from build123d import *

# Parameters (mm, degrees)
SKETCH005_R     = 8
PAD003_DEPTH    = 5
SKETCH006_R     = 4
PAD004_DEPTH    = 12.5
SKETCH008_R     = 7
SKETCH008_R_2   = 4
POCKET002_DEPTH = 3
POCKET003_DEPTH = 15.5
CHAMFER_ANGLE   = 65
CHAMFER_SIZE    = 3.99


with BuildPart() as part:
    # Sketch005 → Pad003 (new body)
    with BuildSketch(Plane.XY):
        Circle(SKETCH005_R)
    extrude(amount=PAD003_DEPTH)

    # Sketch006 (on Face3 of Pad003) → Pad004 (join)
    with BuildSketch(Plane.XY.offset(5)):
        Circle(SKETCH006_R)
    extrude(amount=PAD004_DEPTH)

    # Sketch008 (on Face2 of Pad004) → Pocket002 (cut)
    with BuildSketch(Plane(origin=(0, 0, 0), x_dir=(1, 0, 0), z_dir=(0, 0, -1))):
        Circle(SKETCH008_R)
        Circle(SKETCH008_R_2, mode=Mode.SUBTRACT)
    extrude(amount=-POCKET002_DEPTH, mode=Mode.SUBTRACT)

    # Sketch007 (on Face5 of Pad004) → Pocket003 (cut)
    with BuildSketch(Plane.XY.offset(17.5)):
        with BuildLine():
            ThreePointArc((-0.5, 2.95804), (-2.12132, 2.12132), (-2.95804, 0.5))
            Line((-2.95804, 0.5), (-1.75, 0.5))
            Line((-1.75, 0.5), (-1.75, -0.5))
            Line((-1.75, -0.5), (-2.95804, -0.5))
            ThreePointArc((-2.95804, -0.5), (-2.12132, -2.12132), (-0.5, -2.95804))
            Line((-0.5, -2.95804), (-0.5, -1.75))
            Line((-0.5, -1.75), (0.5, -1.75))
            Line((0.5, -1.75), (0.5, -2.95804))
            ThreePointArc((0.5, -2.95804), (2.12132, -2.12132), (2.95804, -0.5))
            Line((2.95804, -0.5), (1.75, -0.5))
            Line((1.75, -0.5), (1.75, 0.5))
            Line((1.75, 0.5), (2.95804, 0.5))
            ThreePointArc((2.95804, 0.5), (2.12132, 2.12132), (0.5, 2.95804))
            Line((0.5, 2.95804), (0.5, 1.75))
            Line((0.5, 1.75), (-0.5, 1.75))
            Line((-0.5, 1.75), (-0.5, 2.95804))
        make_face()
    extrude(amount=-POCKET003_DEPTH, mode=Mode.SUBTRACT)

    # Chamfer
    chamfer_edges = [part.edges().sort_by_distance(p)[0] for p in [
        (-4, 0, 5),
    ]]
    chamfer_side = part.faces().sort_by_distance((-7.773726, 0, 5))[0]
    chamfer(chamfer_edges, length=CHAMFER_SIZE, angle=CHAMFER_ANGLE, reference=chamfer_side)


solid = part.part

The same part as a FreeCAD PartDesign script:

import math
import FreeCAD as App
import Part
import Sketcher
from FreeCAD import Vector


def edges_at(feature, points):
    """Names of the edges that pass closest to the given points."""
    edges = feature.Shape.Edges
    near = lambda p: min(range(len(edges)), key=lambda i: edges[i].distToShape(Part.Vertex(*p))[0])
    return sorted({f"Edge{near(p) + 1}" for p in points})

doc = App.newDocument("Part")
body = doc.addObject("PartDesign::Body", "Body")

# Sketch on XY plane
sketch1 = body.newObject("Sketcher::SketchObject", "Sketch")
sketch1.AttachmentSupport = (doc.getObject("XY_Plane"), [""])
sketch1.MapMode = "FlatFace"
sketch1.addGeometry(Part.Circle(Vector(0, 0, 0), Vector(0, 0, 1), 8), False)
sketch1.addConstraint(Sketcher.Constraint("Coincident", 0, 3, -1, 1))
sketch1.addConstraint(Sketcher.Constraint("Diameter", 0, 16.0))
pad1 = body.newObject("PartDesign::Pad", "Pad")
pad1.Profile = sketch1
pad1.Length = 5

# Sketch on XY plane
sketch2 = body.newObject("Sketcher::SketchObject", "Sketch001")
sketch2.AttachmentSupport = (doc.getObject("XY_Plane"), [""])
sketch2.MapMode = "FlatFace"
sketch2.AttachmentOffset = App.Placement(Vector(0, 0, 5), App.Rotation())
sketch2.addGeometry(Part.Circle(Vector(0, 0, 0), Vector(0, 0, 1), 4), False)
sketch2.addConstraint(Sketcher.Constraint("Coincident", 0, 3, -1, 1))
sketch2.addConstraint(Sketcher.Constraint("Diameter", 0, 8.0))
pad2 = body.newObject("PartDesign::Pad", "Pad001")
pad2.Profile = sketch2
pad2.Length = 12.5

# Sketch on XY plane
sketch3 = body.newObject("Sketcher::SketchObject", "Sketch002")
sketch3.AttachmentSupport = (doc.getObject("XY_Plane"), [""])
sketch3.MapMode = "FlatFace"
sketch3.addGeometry(Part.Circle(Vector(0, 0, 0), Vector(0, 0, 1), 7), False)
sketch3.addGeometry(Part.Circle(Vector(0, 0, 0), Vector(0, 0, 1), 4), False)
sketch3.addConstraint(Sketcher.Constraint("Coincident", 0, 3, -1, 1))
sketch3.addConstraint(Sketcher.Constraint("Coincident", 1, 3, -1, 1))
sketch3.addConstraint(Sketcher.Constraint("Diameter", 0, 14.0))
sketch3.addConstraint(Sketcher.Constraint("Diameter", 1, 8.0))
pocket1 = body.newObject("PartDesign::Pocket", "Pocket")
pocket1.Profile = sketch3
pocket1.Length = 3
pocket1.Reversed = True

# Sketch on XY plane
sketch4 = body.newObject("Sketcher::SketchObject", "Sketch003")
sketch4.AttachmentSupport = (doc.getObject("XY_Plane"), [""])
sketch4.MapMode = "FlatFace"
sketch4.AttachmentOffset = App.Placement(Vector(0, 0, 17.5), App.Rotation())
sketch4.addGeometry(Part.ArcOfCircle(Part.Circle(Vector(0, 0, 0), Vector(0, 0, 1), 3), math.radians(100), math.radians(170)), False)
sketch4.addGeometry(Part.LineSegment(Vector(-3, 0.5, 0), Vector(-1.8, 0.5, 0)), False)
sketch4.addGeometry(Part.LineSegment(Vector(-1.8, 0.5, 0), Vector(-1.8, -0.5, 0)), False)
sketch4.addGeometry(Part.LineSegment(Vector(-1.8, -0.5, 0), Vector(-3, -0.5, 0)), False)
sketch4.addGeometry(Part.ArcOfCircle(Part.Circle(Vector(0, 0, 0), Vector(0, 0, 1), 3), math.radians(-170), math.radians(-100)), False)
sketch4.addGeometry(Part.LineSegment(Vector(-0.5, -3, 0), Vector(-0.5, -1.8, 0)), False)
sketch4.addGeometry(Part.LineSegment(Vector(-0.5, -1.8, 0), Vector(0.5, -1.8, 0)), False)
sketch4.addGeometry(Part.LineSegment(Vector(0.5, -1.8, 0), Vector(0.5, -3, 0)), False)
sketch4.addGeometry(Part.ArcOfCircle(Part.Circle(Vector(0, 0, 0), Vector(0, 0, 1), 3), math.radians(-80), math.radians(-10)), False)
sketch4.addGeometry(Part.LineSegment(Vector(3, -0.5, 0), Vector(1.8, -0.5, 0)), False)
sketch4.addGeometry(Part.LineSegment(Vector(1.8, -0.5, 0), Vector(1.8, 0.5, 0)), False)
sketch4.addGeometry(Part.LineSegment(Vector(1.8, 0.5, 0), Vector(3, 0.5, 0)), False)
sketch4.addGeometry(Part.ArcOfCircle(Part.Circle(Vector(0, 0, 0), Vector(0, 0, 1), 3), math.radians(10), math.radians(80)), False)
sketch4.addGeometry(Part.LineSegment(Vector(0.5, 3, 0), Vector(0.5, 1.8, 0)), False)
sketch4.addGeometry(Part.LineSegment(Vector(0.5, 1.8, 0), Vector(-0.5, 1.8, 0)), False)
sketch4.addGeometry(Part.LineSegment(Vector(-0.5, 1.8, 0), Vector(-0.5, 3, 0)), False)
sketch4.addConstraint(Sketcher.Constraint("Coincident", 0, 2, 1, 1))
sketch4.addConstraint(Sketcher.Constraint("Coincident", 1, 2, 2, 1))
sketch4.addConstraint(Sketcher.Constraint("Coincident", 2, 2, 3, 1))
sketch4.addConstraint(Sketcher.Constraint("Coincident", 3, 2, 4, 1))
sketch4.addConstraint(Sketcher.Constraint("Coincident", 4, 2, 5, 1))
sketch4.addConstraint(Sketcher.Constraint("Coincident", 5, 2, 6, 1))
sketch4.addConstraint(Sketcher.Constraint("Coincident", 6, 2, 7, 1))
sketch4.addConstraint(Sketcher.Constraint("Coincident", 7, 2, 8, 1))
sketch4.addConstraint(Sketcher.Constraint("Coincident", 8, 2, 9, 1))
sketch4.addConstraint(Sketcher.Constraint("Coincident", 9, 2, 10, 1))
sketch4.addConstraint(Sketcher.Constraint("Coincident", 10, 2, 11, 1))
sketch4.addConstraint(Sketcher.Constraint("Coincident", 11, 2, 12, 1))
sketch4.addConstraint(Sketcher.Constraint("Coincident", 12, 2, 13, 1))
sketch4.addConstraint(Sketcher.Constraint("Coincident", 13, 2, 14, 1))
sketch4.addConstraint(Sketcher.Constraint("Coincident", 14, 2, 15, 1))
sketch4.addConstraint(Sketcher.Constraint("Coincident", 15, 2, 0, 1))
sketch4.addConstraint(Sketcher.Constraint("Horizontal", 1))
sketch4.addConstraint(Sketcher.Constraint("Vertical", 2))
sketch4.addConstraint(Sketcher.Constraint("Horizontal", 3))
sketch4.addConstraint(Sketcher.Constraint("Vertical", 5))
sketch4.addConstraint(Sketcher.Constraint("Horizontal", 6))
sketch4.addConstraint(Sketcher.Constraint("Vertical", 7))
sketch4.addConstraint(Sketcher.Constraint("Horizontal", 9))
sketch4.addConstraint(Sketcher.Constraint("Vertical", 10))
sketch4.addConstraint(Sketcher.Constraint("Horizontal", 11))
sketch4.addConstraint(Sketcher.Constraint("Vertical", 13))
sketch4.addConstraint(Sketcher.Constraint("Horizontal", 14))
sketch4.addConstraint(Sketcher.Constraint("Vertical", 15))
sketch4.addConstraint(Sketcher.Constraint("Coincident", 0, 3, -1, 1))
sketch4.addConstraint(Sketcher.Constraint("Coincident", 4, 3, -1, 1))
sketch4.addConstraint(Sketcher.Constraint("Coincident", 8, 3, -1, 1))
sketch4.addConstraint(Sketcher.Constraint("Coincident", 12, 3, -1, 1))
sketch4.addConstraint(Sketcher.Constraint("Equal", 0, 4))
sketch4.addConstraint(Sketcher.Constraint("Equal", 4, 8))
sketch4.addConstraint(Sketcher.Constraint("Equal", 8, 12))
sketch4.addConstraint(Sketcher.Constraint("Symmetric", 1, 2, 9, 2, -1, 1))
sketch4.addConstraint(Sketcher.Constraint("Symmetric", 5, 2, 13, 2, -1, 1))
sketch4.addConstraint(Sketcher.Constraint("Horizontal", 4, 2, 7, 2))
sketch4.addConstraint(Sketcher.Constraint("Horizontal", 3, 2, 8, 2))
sketch4.addConstraint(Sketcher.Constraint("Horizontal", 1, 2, 10, 2))
sketch4.addConstraint(Sketcher.Constraint("Horizontal", 12, 2, 15, 2))
sketch4.addConstraint(Sketcher.Constraint("Equal", 14, 2))
sketch4.addConstraint(Sketcher.Constraint("Equal", 11, 5))
sketch4.addConstraint(Sketcher.Constraint("DistanceX", 6, 1, 6, 2, 1.0))
sketch4.addConstraint(Sketcher.Constraint("DistanceX", 1, 2, -1, 1, 1.75))
sketch4.addConstraint(Sketcher.Constraint("Radius", 0, 3.000003))
pocket2 = body.newObject("PartDesign::Pocket", "Pocket001")
pocket2.Profile = sketch4
pocket2.Length = 15.5
doc.recompute()

chamfer = body.newObject("PartDesign::Chamfer", "Chamfer")
chamfer.Base = (pocket2, edges_at(pocket2, [(-4, 0, 5)]))
chamfer.ChamferType = "Distance and Angle"
chamfer.Size = 3.99
chamfer.Angle = 65

doc.recompute()
